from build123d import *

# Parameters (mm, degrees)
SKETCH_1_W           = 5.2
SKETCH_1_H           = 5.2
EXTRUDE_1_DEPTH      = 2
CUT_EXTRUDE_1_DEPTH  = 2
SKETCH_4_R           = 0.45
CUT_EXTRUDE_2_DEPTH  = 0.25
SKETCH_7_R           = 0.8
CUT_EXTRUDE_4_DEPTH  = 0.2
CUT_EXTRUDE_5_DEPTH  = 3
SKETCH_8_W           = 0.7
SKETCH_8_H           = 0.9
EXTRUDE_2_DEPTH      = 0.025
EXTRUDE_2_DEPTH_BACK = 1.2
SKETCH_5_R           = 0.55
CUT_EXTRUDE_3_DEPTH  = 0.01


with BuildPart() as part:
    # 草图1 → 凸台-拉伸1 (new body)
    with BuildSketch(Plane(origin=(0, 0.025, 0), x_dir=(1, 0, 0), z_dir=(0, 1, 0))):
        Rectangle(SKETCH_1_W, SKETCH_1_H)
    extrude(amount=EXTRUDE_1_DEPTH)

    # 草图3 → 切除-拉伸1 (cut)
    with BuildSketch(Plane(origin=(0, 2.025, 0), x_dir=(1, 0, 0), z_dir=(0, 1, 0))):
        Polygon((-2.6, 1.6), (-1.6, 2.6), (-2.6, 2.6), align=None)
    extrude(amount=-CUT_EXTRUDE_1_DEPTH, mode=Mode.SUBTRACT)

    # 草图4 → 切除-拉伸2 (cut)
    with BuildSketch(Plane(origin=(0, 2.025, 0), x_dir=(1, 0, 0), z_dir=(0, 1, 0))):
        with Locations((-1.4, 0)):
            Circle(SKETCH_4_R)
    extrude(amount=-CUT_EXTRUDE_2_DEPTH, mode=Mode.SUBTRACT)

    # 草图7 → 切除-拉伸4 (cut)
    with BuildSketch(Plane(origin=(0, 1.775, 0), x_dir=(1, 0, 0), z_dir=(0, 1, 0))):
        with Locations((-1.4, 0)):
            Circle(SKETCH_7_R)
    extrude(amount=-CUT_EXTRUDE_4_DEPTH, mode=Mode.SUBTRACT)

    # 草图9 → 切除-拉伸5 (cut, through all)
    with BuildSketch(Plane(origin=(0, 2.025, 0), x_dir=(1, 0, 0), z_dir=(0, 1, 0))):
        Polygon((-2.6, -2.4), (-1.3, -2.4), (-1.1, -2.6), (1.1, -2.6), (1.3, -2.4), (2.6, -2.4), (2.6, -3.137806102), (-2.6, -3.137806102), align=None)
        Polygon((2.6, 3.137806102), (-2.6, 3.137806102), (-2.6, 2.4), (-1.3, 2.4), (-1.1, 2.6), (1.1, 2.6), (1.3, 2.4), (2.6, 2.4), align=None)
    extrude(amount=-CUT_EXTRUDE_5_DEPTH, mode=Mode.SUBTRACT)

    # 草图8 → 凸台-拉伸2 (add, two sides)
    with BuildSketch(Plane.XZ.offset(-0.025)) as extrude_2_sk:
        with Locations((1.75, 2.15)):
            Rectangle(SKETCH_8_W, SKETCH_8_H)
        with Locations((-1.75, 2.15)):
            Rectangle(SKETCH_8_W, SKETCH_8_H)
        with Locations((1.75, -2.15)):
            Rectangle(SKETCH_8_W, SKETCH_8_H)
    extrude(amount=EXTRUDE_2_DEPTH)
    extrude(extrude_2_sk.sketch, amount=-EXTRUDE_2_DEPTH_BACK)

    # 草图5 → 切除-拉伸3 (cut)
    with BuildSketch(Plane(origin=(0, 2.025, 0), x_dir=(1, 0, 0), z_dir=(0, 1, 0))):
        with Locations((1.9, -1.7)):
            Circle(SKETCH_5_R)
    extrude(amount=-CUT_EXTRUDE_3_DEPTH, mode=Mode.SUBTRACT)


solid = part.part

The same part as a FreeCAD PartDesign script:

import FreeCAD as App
import Part
import Sketcher

V = App.Vector

doc = App.newDocument("Part")
body = doc.addObject("PartDesign::Body", "Body")

sketch1 = body.newObject("Sketcher::SketchObject", "Sketch")
sketch1.AttachmentSupport = (doc.getObject("XZ_Plane"), [""])
sketch1.MapMode = "FlatFace"
sketch1.AttachmentOffset = App.Placement(V(0, 0, -0.025), App.Rotation())
sketch1.addGeometry([
    Part.LineSegment(V(-2.6, -2.6, 0), V(-2.6, 2.6, 0)),
    Part.LineSegment(V(-2.6, 2.6, 0), V(2.6, 2.6, 0)),
    Part.LineSegment(V(2.6, 2.6, 0), V(2.6, -2.6, 0)),
    Part.LineSegment(V(2.6, -2.6, 0), V(-2.6, -2.6, 0)),
], False)
sketch1.addConstraint([
    Sketcher.Constraint("Coincident", 0, 2, 1, 1),
    Sketcher.Constraint("Coincident", 1, 2, 2, 1),
    Sketcher.Constraint("Coincident", 2, 2, 3, 1),
    Sketcher.Constraint("Coincident", 3, 2, 0, 1),
    Sketcher.Constraint("Vertical", 0),
    Sketcher.Constraint("Horizontal", 1),
    Sketcher.Constraint("Vertical", 2),
    Sketcher.Constraint("Horizontal", 3),
    Sketcher.Constraint("Symmetric", 0, 2, 2, 2, -1, 1),
    Sketcher.Constraint("Equal", 3, 0),
    Sketcher.Constraint("DistanceX", 1, 1, 1, 2, 5.2),
])
pad1 = body.newObject("PartDesign::Pad", "Pad")
pad1.Profile = sketch1
pad1.Length = 2
pad1.Reversed = True

sketch2 = body.newObject("Sketcher::SketchObject", "Sketch001")
sketch2.AttachmentSupport = (doc.getObject("XZ_Plane"), [""])
sketch2.MapMode = "FlatFace"
sketch2.AttachmentOffset = App.Placement(V(0, 0, -2.025), App.Rotation())
sketch2.addGeometry([
    Part.LineSegment(V(-2.6, -1.6, 0), V(-1.6, -2.6, 0)),
    Part.LineSegment(V(-1.6, -2.6, 0), V(-2.6, -2.6, 0)),
    Part.LineSegment(V(-2.6, -2.6, 0), V(-2.6, -1.6, 0)),
], False)
sketch2.addConstraint([
    Sketcher.Constraint("Coincident", 0, 2, 1, 1),
    Sketcher.Constraint("Coincident", 1, 2, 2, 1),
    Sketcher.Constraint("Coincident", 2, 2, 0, 1),
    Sketcher.Constraint("Horizontal", 1),
    Sketcher.Constraint("Vertical", 2),
    Sketcher.Constraint("Equal", 1, 2),
    Sketcher.Constraint("DistanceX", 1, 2, 1, 1, 1.0),
    Sketcher.Constraint("DistanceX", 0, 2, -1, 1, 1.6),
    Sketcher.Constraint("DistanceY", 0, 2, -1, 1, 2.6),
])
pocket1 = body.newObject("PartDesign::Pocket", "Pocket")
pocket1.Profile = sketch2
pocket1.Length = 2
pocket1.Reversed = True

sketch3 = body.newObject("Sketcher::SketchObject", "Sketch002")
sketch3.AttachmentSupport = (doc.getObject("XZ_Plane"), [""])
sketch3.MapMode = "FlatFace"
sketch3.AttachmentOffset = App.Placement(V(0, 0, -2.025), App.Rotation())
sketch3.addGeometry(Part.Circle(V(-1.4, 0, 0), V(0, 0, 1), 0.45), False)
sketch3.addConstraint([
    Sketcher.Constraint("PointOnObject", 0, 3, -1),
    Sketcher.Constraint("Diameter", 0, 0.9),
    Sketcher.Constraint("DistanceX", 0, 3, -1, 1, 1.4),
])
pocket2 = body.newObject("PartDesign::Pocket", "Pocket001")
pocket2.Profile = sketch3
pocket2.Length = 0.25
pocket2.Reversed = True

sketch4 = body.newObject("Sketcher::SketchObject", "Sketch003")
sketch4.AttachmentSupport = (doc.getObject("XZ_Plane"), [""])
sketch4.MapMode = "FlatFace"
sketch4.AttachmentOffset = App.Placement(V(0, 0, -1.775), App.Rotation())
sketch4.addGeometry(Part.Circle(V(-1.4, 0, 0), V(0, 0, 1), 0.8), False)
sketch4.addConstraint([
    Sketcher.Constraint("PointOnObject", 0, 3, -1),
    Sketcher.Constraint("Diameter", 0, 1.6),
    Sketcher.Constraint("DistanceX", 0, 3, -1, 1, 1.4),
])
pocket3 = body.newObject("PartDesign::Pocket", "Pocket002")
pocket3.Profile = sketch4
pocket3.Length = 0.2
pocket3.Reversed = True

sketch5 = body.newObject("Sketcher::SketchObject", "Sketch004")
sketch5.AttachmentSupport = (doc.getObject("XZ_Plane"), [""])
sketch5.MapMode = "FlatFace"
sketch5.AttachmentOffset = App.Placement(V(0, 0, -2.025), App.Rotation())
sketch5.addGeometry([
    Part.LineSegment(V(-1.3, 2.4, 0), V(-2.6, 2.4, 0)),
    Part.LineSegment(V(-2.6, 2.4, 0), V(-2.6, 3.137806, 0)),
    Part.LineSegment(V(-2.6, 3.137806, 0), V(2.6, 3.137806, 0)),
    Part.LineSegment(V(2.6, 3.137806, 0), V(2.6, 2.4, 0)),
    Part.LineSegment(V(2.6, 2.4, 0), V(1.3, 2.4, 0)),
    Part.LineSegment(V(1.3, 2.4, 0), V(1.1, 2.6, 0)),
    Part.LineSegment(V(1.1, 2.6, 0), V(-1.1, 2.6, 0)),
    Part.LineSegment(V(-1.1, 2.6, 0), V(-1.3, 2.4, 0)),
    Part.LineSegment(V(2.6, -3.137806, 0), V(-2.6, -3.137806, 0)),
    Part.LineSegment(V(-2.6, -3.137806, 0), V(-2.6, -2.4, 0)),
    Part.LineSegment(V(-2.6, -2.4, 0), V(-1.3, -2.4, 0)),
    Part.LineSegment(V(-1.3, -2.4, 0), V(-1.1, -2.6, 0)),
    Part.LineSegment(V(-1.1, -2.6, 0), V(1.1, -2.6, 0)),
    Part.LineSegment(V(1.1, -2.6, 0), V(1.3, -2.4, 0)),
    Part.LineSegment(V(1.3, -2.4, 0), V(2.6, -2.4, 0)),
    Part.LineSegment(V(2.6, -2.4, 0), V(2.6, -3.137806, 0)),
], False)
sketch5.addConstraint([
    Sketcher.Constraint("Coincident", 0, 2, 1, 1),
    Sketcher.Constraint("Coincident", 1, 2, 2, 1),
    Sketcher.Constraint("Coincident", 2, 2, 3, 1),
    Sketcher.Constraint("Coincident", 3, 2, 4, 1),
    Sketcher.Constraint("Coincident", 4, 2, 5, 1),
    Sketcher.Constraint("Coincident", 5, 2, 6, 1),
    Sketcher.Constraint("Coincident", 6, 2, 7, 1),
    Sketcher.Constraint("Coincident", 7, 2, 0, 1),
    Sketcher.Constraint("Coincident", 8, 2, 9, 1),
    Sketcher.Constraint("Coincident", 9, 2, 10, 1),
    Sketcher.Constraint("Coincident", 10, 2, 11, 1),
    Sketcher.Constraint("Coincident", 11, 2, 12, 1),
    Sketcher.Constraint("Coincident", 12, 2, 13, 1),
    Sketcher.Constraint("Coincident", 13, 2, 14, 1),
    Sketcher.Constraint("Coincident", 14, 2, 15, 1),
    Sketcher.Constraint("Coincident", 15, 2, 8, 1),
    Sketcher.Constraint("Horizontal", 0),
    Sketcher.Constraint("Vertical", 1),
    Sketcher.Constraint("Horizontal", 2),
    Sketcher.Constraint("Vertical", 3),
    Sketcher.Constraint("Horizontal", 4),
    Sketcher.Constraint("Horizontal", 6),
    Sketcher.Constraint("Horizontal", 8),
    Sketcher.Constraint("Vertical", 9),
    Sketcher.Constraint("Horizontal", 10),
    Sketcher.Constraint("Horizontal", 12),
    Sketcher.Constraint("Horizontal", 14),
    Sketcher.Constraint("Vertical", 15),
    Sketcher.Constraint("Symmetric", 2, 2, 8, 2, -1, 1),
    Sketcher.Constraint("Symmetric", 4, 2, 10, 2, -1, 1),
    Sketcher.Constraint("Symmetric", 5, 2, 11, 2, -1, 1),
    Sketcher.Constraint("Symmetric", 7, 2, 13, 2, -1, 1),
    Sketcher.Constraint("Symmetric", 0, 2, 3, 2, -2),
    Sketcher.Constraint("Perpendicular", 5, 7),
    Sketcher.Constraint("Perpendicular", 11, 13),
    Sketcher.Constraint("Vertical", 7, 2, 10, 2),
    Sketcher.Constraint("Vertical", 6, 2, 11, 2),
    Sketcher.Constraint("Vertical", 3, 2, 14, 2),
    Sketcher.Constraint("DistanceX", 0, 2, 0, 1, 1.3),
    Sketcher.Constraint("DistanceX", 2, 1, 2, 2, 5.2),
    Sketcher.Constraint("DistanceX", 6, 2, 6, 1, 2.2),
    Sketcher.Constraint("DistanceY", 9, 2, 6, 2, 5.0),
    Sketcher.Constraint("DistanceY", 1, 1, 1, 2, 0.737806),
])
pocket4 = body.newObject("PartDesign::Pocket", "Pocket003")
pocket4.Profile = sketch5
pocket4.Type = "ThroughAll"
pocket4.Reversed = True

sketch6 = body.newObject("Sketcher::SketchObject", "Sketch005")
sketch6.AttachmentSupport = (doc.getObject("XZ_Plane"), [""])
sketch6.MapMode = "FlatFace"
sketch6.AttachmentOffset = App.Placement(V(0, 0, -0.025), App.Rotation())
sketch6.addGeometry([
    Part.LineSegment(V(1.4, 2.6, 0), V(1.4, 1.7, 0)),
    Part.LineSegment(V(1.4, 1.7, 0), V(2.1, 1.7, 0)),
    Part.LineSegment(V(2.1, 1.7, 0), V(2.1, 2.6, 0)),
    Part.LineSegment(V(2.1, 2.6, 0), V(1.4, 2.6, 0)),
    Part.LineSegment(V(-2.1, 2.6, 0), V(-2.1, 1.7, 0)),
    Part.LineSegment(V(-2.1, 1.7, 0), V(-1.4, 1.7, 0)),
    Part.LineSegment(V(-1.4, 1.7, 0), V(-1.4, 2.6, 0)),
    Part.LineSegment(V(-1.4, 2.6, 0), V(-2.1, 2.6, 0)),
    Part.LineSegment(V(1.4, -1.7, 0), V(1.4, -2.6, 0)),
    Part.LineSegment(V(1.4, -2.6, 0), V(2.1, -2.6, 0)),
    Part.LineSegment(V(2.1, -2.6, 0), V(2.1, -1.7, 0)),
    Part.LineSegment(V(2.1, -1.7, 0), V(1.4, -1.7, 0)),
], False)
sketch6.addConstraint([
    Sketcher.Constraint("Coincident", 0, 2, 1, 1),
    Sketcher.Constraint("Coincident", 1, 2, 2, 1),
    Sketcher.Constraint("Coincident", 2, 2, 3, 1),
    Sketcher.Constraint("Coincident", 3, 2, 0, 1),
    Sketcher.Constraint("Coincident", 4, 2, 5, 1),
    Sketcher.Constraint("Coincident", 5, 2, 6, 1),
    Sketcher.Constraint("Coincident", 6, 2, 7, 1),
    Sketcher.Constraint("Coincident", 7, 2, 4, 1),
    Sketcher.Constraint("Coincident", 8, 2, 9, 1),
    Sketcher.Constraint("Coincident", 9, 2, 10, 1),
    Sketcher.Constraint("Coincident", 10, 2, 11, 1),
    Sketcher.Constraint("Coincident", 11, 2, 8, 1),
    Sketcher.Constraint("Vertical", 0),
    Sketcher.Constraint("Horizontal", 1),
    Sketcher.Constraint("Vertical", 2),
    Sketcher.Constraint("Horizontal", 3),
    Sketcher.Constraint("Vertical", 4),
    Sketcher.Constraint("Horizontal", 5),
    Sketcher.Constraint("Vertical", 6),
    Sketcher.Constraint("Horizontal", 7),
    Sketcher.Constraint("Vertical", 8),
    Sketcher.Constraint("Horizontal", 9),
    Sketcher.Constraint("Vertical", 10),
    Sketcher.Constraint("Horizontal", 11),
    Sketcher.Constraint("Symmetric", 6, 2, 8, 2, -1, 1),
    Sketcher.Constraint("Symmetric", 4, 2, 10, 2, -1, 1),
    Sketcher.Constraint("Symmetric", 1, 2, 4, 2, -2),
    Sketcher.Constraint("Symmetric", 3, 2, 6, 2, -2),
    Sketcher.Constraint("DistanceX", 1, 1, 1, 2, 0.7),
    Sketcher.Constraint("DistanceY", 0, 2, 0, 1, 0.9),
    Sketcher.Constraint("DistanceX", -1, 1, 0, 2, 1.4),
    Sketcher.Constraint("DistanceY", -1, 1, 0, 2, 1.7),
])
pad2 = body.newObject("PartDesign::Pad", "Pad001")
pad2.Profile = sketch6
pad2.Type = "TwoLengths"
pad2.Length = 0.025
pad2.Length2 = 1.2

sketch7 = body.newObject("Sketcher::SketchObject", "Sketch006")
sketch7.AttachmentSupport = (doc.getObject("XZ_Plane"), [""])
sketch7.MapMode = "FlatFace"
sketch7.AttachmentOffset = App.Placement(V(0, 0, -2.025), App.Rotation())
sketch7.addGeometry(Part.Circle(V(1.9, 1.7, 0), V(0, 0, 1), 0.55), False)
sketch7.addConstraint([
    Sketcher.Constraint("Diameter", 0, 1.1),
    Sketcher.Constraint("DistanceX", -1, 1, 0, 3, 1.9),
    Sketcher.Constraint("DistanceY", -1, 1, 0, 3, 1.7),
])
pocket5 = body.newObject("PartDesign::Pocket", "Pocket004")
pocket5.Profile = sketch7
pocket5.Length = 0.01
pocket5.Reversed = True

doc.recompute()
